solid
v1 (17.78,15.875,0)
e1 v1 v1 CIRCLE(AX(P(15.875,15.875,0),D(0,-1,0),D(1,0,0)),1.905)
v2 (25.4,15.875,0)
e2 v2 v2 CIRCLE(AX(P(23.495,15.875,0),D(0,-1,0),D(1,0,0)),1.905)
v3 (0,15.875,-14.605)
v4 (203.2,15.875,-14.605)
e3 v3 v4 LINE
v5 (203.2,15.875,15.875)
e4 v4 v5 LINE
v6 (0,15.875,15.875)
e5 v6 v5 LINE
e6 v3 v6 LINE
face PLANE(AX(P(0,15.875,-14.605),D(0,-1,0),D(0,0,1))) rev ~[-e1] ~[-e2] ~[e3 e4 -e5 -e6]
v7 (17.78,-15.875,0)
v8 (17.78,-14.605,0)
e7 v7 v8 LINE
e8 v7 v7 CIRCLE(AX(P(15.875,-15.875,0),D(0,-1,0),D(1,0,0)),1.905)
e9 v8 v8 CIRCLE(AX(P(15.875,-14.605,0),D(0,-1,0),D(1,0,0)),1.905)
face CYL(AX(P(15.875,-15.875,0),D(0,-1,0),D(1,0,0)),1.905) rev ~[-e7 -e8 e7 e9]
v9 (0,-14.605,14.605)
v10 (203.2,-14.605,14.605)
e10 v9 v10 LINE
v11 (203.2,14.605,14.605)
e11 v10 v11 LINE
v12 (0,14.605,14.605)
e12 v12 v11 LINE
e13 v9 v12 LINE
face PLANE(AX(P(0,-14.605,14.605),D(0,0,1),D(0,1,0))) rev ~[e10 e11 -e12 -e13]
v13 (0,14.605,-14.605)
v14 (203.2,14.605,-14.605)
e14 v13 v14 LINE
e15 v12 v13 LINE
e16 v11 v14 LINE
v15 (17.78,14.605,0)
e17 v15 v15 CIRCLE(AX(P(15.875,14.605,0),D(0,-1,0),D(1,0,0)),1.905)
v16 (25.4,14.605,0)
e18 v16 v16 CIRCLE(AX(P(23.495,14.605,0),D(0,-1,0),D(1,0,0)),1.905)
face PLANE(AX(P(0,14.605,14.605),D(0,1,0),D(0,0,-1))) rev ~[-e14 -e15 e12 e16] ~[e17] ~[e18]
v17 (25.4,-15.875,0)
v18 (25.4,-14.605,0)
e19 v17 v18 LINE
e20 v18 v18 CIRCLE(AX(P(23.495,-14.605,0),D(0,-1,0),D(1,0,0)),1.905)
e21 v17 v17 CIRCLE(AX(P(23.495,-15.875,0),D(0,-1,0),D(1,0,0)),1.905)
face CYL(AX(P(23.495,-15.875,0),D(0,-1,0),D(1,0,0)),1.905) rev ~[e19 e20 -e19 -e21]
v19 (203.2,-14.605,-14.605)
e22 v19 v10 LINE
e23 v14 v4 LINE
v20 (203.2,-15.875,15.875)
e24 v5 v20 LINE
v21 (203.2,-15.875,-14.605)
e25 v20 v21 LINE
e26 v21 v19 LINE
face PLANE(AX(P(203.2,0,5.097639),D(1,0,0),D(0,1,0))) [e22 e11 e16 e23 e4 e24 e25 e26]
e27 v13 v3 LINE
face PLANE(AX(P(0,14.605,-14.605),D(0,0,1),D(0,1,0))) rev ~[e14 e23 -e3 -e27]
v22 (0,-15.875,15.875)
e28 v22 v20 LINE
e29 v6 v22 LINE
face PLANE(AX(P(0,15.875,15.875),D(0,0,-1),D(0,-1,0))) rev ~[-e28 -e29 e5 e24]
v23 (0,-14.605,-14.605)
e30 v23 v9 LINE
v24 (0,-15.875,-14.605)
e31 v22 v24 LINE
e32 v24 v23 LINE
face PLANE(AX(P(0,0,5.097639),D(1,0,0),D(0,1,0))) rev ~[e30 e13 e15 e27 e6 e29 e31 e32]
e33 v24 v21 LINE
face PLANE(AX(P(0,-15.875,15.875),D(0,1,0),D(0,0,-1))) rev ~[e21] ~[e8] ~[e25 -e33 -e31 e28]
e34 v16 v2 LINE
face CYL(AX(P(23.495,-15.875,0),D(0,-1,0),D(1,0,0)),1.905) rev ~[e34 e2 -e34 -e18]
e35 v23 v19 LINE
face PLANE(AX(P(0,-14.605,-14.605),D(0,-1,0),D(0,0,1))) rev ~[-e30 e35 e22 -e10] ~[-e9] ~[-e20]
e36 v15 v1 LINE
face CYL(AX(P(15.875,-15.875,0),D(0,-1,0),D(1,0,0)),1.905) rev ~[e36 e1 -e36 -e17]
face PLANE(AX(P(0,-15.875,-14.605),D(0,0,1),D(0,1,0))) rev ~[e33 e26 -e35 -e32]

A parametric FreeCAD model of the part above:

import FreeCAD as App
import Part
import Sketcher
from FreeCAD import Vector
Q = App.Units.Quantity

doc = App.newDocument("Part")
body = doc.addObject("PartDesign::Body", "Body")

# Sketch on YZ plane
sketch1 = body.newObject("Sketcher::SketchObject", "Sketch")
sketch1.AttachmentSupport = (doc.getObject("YZ_Plane"), [""])
sketch1.MapMode = "FlatFace"
sketch1.addGeometry(Part.LineSegment(Vector(15.9, -14.6, 0), Vector(15.9, 15.9, 0)), False)
sketch1.addGeometry(Part.LineSegment(Vector(15.9, 15.9, 0), Vector(-15.9, 15.9, 0)), False)
sketch1.addGeometry(Part.LineSegment(Vector(-15.9, 15.9, 0), Vector(-15.9, -14.6, 0)), False)
sketch1.addGeometry(Part.LineSegment(Vector(-15.9, -14.6, 0), Vector(-14.6, -14.6, 0)), False)
sketch1.addGeometry(Part.LineSegment(Vector(-14.6, -14.6, 0), Vector(-14.6, 14.6, 0)), False)
sketch1.addGeometry(Part.LineSegment(Vector(-14.6, 14.6, 0), Vector(14.6, 14.6, 0)), False)
sketch1.addGeometry(Part.LineSegment(Vector(14.6, 14.6, 0), Vector(14.6, -14.6, 0)), False)
sketch1.addGeometry(Part.LineSegment(Vector(14.6, -14.6, 0), Vector(15.9, -14.6, 0)), False)
sketch1.addConstraint(Sketcher.Constraint("Coincident", 0, 2, 1, 1))
sketch1.addConstraint(Sketcher.Constraint("Coincident", 1, 2, 2, 1))
sketch1.addConstraint(Sketcher.Constraint("Coincident", 2, 2, 3, 1))
sketch1.addConstraint(Sketcher.Constraint("Coincident", 3, 2, 4, 1))
sketch1.addConstraint(Sketcher.Constraint("Coincident", 4, 2, 5, 1))
sketch1.addConstraint(Sketcher.Constraint("Coincident", 5, 2, 6, 1))
sketch1.addConstraint(Sketcher.Constraint("Coincident", 6, 2, 7, 1))
sketch1.addConstraint(Sketcher.Constraint("Coincident", 7, 2, 0, 1))
sketch1.addConstraint(Sketcher.Constraint("Vertical", 0))
sketch1.addConstraint(Sketcher.Constraint("Horizontal", 1))
sketch1.addConstraint(Sketcher.Constraint("Vertical", 2))
sketch1.addConstraint(Sketcher.Constraint("Horizontal", 3))
sketch1.addConstraint(Sketcher.Constraint("Vertical", 4))
sketch1.addConstraint(Sketcher.Constraint("Horizontal", 5))
sketch1.addConstraint(Sketcher.Constraint("Vertical", 6))
sketch1.addConstraint(Sketcher.Constraint("Horizontal", 7))
sketch1.addConstraint(Sketcher.Constraint("Symmetric", 3, 2, 5, 2, -1, 1))
sketch1.addConstraint(Sketcher.Constraint("Symmetric", 2, 2, 7, 2, -2))
sketch1.addConstraint(Sketcher.Constraint("Equal", 5, 4))
sketch1.addConstraint(Sketcher.Constraint("DistanceY", 0, 1, 0, 2, Q("1.2 in")))
sketch1.addConstraint(Sketcher.Constraint("DistanceX", 1, 2, 1, 1, Q("1.25 in")))
sketch1.addConstraint(Sketcher.Constraint("DistanceX", 3, 1, 3, 2, Q("0.05 in")))
pad1 = body.newObject("PartDesign::Pad", "Pad")
pad1.Profile = sketch1
pad1.Length = Q("8 in")

# Sketch on XZ plane
sketch2 = body.newObject("Sketcher::SketchObject", "Sketch001")
sketch2.AttachmentSupport = (doc.getObject("XZ_Plane"), [""])
sketch2.MapMode = "FlatFace"
sketch2.AttachmentOffset = App.Placement(Vector(0, 0, 0.625 * 25.4), App.Rotation())
sketch2.addGeometry(Part.Circle(Vector(15.9, 0, 0), Vector(0, 0, 1), 1.9), False)
sketch2.addGeometry(Part.Circle(Vector(23.5, 0, 0), Vector(0, 0, 1), 1.9), False)
sketch2.addConstraint(Sketcher.Constraint("Equal", 0, 1))
sketch2.addConstraint(Sketcher.Constraint("PointOnObject", 0, 3, -1))
sketch2.addConstraint(Sketcher.Constraint("PointOnObject", 1, 3, -1))
sketch2.addConstraint(Sketcher.Constraint("Diameter", 0, Q("0.15 in")))
sketch2.addConstraint(Sketcher.Constraint("DistanceX", 0, 3, 1, 3, Q("0.3 in")))
sketch2.addConstraint(Sketcher.Constraint("DistanceX", -1, 1, 0, 3, Q("0.625 in")))
pocket1 = body.newObject("PartDesign::Pocket", "Pocket")
pocket1.Profile = sketch2
pocket1.Type = "ThroughAll"

doc.recompute()
